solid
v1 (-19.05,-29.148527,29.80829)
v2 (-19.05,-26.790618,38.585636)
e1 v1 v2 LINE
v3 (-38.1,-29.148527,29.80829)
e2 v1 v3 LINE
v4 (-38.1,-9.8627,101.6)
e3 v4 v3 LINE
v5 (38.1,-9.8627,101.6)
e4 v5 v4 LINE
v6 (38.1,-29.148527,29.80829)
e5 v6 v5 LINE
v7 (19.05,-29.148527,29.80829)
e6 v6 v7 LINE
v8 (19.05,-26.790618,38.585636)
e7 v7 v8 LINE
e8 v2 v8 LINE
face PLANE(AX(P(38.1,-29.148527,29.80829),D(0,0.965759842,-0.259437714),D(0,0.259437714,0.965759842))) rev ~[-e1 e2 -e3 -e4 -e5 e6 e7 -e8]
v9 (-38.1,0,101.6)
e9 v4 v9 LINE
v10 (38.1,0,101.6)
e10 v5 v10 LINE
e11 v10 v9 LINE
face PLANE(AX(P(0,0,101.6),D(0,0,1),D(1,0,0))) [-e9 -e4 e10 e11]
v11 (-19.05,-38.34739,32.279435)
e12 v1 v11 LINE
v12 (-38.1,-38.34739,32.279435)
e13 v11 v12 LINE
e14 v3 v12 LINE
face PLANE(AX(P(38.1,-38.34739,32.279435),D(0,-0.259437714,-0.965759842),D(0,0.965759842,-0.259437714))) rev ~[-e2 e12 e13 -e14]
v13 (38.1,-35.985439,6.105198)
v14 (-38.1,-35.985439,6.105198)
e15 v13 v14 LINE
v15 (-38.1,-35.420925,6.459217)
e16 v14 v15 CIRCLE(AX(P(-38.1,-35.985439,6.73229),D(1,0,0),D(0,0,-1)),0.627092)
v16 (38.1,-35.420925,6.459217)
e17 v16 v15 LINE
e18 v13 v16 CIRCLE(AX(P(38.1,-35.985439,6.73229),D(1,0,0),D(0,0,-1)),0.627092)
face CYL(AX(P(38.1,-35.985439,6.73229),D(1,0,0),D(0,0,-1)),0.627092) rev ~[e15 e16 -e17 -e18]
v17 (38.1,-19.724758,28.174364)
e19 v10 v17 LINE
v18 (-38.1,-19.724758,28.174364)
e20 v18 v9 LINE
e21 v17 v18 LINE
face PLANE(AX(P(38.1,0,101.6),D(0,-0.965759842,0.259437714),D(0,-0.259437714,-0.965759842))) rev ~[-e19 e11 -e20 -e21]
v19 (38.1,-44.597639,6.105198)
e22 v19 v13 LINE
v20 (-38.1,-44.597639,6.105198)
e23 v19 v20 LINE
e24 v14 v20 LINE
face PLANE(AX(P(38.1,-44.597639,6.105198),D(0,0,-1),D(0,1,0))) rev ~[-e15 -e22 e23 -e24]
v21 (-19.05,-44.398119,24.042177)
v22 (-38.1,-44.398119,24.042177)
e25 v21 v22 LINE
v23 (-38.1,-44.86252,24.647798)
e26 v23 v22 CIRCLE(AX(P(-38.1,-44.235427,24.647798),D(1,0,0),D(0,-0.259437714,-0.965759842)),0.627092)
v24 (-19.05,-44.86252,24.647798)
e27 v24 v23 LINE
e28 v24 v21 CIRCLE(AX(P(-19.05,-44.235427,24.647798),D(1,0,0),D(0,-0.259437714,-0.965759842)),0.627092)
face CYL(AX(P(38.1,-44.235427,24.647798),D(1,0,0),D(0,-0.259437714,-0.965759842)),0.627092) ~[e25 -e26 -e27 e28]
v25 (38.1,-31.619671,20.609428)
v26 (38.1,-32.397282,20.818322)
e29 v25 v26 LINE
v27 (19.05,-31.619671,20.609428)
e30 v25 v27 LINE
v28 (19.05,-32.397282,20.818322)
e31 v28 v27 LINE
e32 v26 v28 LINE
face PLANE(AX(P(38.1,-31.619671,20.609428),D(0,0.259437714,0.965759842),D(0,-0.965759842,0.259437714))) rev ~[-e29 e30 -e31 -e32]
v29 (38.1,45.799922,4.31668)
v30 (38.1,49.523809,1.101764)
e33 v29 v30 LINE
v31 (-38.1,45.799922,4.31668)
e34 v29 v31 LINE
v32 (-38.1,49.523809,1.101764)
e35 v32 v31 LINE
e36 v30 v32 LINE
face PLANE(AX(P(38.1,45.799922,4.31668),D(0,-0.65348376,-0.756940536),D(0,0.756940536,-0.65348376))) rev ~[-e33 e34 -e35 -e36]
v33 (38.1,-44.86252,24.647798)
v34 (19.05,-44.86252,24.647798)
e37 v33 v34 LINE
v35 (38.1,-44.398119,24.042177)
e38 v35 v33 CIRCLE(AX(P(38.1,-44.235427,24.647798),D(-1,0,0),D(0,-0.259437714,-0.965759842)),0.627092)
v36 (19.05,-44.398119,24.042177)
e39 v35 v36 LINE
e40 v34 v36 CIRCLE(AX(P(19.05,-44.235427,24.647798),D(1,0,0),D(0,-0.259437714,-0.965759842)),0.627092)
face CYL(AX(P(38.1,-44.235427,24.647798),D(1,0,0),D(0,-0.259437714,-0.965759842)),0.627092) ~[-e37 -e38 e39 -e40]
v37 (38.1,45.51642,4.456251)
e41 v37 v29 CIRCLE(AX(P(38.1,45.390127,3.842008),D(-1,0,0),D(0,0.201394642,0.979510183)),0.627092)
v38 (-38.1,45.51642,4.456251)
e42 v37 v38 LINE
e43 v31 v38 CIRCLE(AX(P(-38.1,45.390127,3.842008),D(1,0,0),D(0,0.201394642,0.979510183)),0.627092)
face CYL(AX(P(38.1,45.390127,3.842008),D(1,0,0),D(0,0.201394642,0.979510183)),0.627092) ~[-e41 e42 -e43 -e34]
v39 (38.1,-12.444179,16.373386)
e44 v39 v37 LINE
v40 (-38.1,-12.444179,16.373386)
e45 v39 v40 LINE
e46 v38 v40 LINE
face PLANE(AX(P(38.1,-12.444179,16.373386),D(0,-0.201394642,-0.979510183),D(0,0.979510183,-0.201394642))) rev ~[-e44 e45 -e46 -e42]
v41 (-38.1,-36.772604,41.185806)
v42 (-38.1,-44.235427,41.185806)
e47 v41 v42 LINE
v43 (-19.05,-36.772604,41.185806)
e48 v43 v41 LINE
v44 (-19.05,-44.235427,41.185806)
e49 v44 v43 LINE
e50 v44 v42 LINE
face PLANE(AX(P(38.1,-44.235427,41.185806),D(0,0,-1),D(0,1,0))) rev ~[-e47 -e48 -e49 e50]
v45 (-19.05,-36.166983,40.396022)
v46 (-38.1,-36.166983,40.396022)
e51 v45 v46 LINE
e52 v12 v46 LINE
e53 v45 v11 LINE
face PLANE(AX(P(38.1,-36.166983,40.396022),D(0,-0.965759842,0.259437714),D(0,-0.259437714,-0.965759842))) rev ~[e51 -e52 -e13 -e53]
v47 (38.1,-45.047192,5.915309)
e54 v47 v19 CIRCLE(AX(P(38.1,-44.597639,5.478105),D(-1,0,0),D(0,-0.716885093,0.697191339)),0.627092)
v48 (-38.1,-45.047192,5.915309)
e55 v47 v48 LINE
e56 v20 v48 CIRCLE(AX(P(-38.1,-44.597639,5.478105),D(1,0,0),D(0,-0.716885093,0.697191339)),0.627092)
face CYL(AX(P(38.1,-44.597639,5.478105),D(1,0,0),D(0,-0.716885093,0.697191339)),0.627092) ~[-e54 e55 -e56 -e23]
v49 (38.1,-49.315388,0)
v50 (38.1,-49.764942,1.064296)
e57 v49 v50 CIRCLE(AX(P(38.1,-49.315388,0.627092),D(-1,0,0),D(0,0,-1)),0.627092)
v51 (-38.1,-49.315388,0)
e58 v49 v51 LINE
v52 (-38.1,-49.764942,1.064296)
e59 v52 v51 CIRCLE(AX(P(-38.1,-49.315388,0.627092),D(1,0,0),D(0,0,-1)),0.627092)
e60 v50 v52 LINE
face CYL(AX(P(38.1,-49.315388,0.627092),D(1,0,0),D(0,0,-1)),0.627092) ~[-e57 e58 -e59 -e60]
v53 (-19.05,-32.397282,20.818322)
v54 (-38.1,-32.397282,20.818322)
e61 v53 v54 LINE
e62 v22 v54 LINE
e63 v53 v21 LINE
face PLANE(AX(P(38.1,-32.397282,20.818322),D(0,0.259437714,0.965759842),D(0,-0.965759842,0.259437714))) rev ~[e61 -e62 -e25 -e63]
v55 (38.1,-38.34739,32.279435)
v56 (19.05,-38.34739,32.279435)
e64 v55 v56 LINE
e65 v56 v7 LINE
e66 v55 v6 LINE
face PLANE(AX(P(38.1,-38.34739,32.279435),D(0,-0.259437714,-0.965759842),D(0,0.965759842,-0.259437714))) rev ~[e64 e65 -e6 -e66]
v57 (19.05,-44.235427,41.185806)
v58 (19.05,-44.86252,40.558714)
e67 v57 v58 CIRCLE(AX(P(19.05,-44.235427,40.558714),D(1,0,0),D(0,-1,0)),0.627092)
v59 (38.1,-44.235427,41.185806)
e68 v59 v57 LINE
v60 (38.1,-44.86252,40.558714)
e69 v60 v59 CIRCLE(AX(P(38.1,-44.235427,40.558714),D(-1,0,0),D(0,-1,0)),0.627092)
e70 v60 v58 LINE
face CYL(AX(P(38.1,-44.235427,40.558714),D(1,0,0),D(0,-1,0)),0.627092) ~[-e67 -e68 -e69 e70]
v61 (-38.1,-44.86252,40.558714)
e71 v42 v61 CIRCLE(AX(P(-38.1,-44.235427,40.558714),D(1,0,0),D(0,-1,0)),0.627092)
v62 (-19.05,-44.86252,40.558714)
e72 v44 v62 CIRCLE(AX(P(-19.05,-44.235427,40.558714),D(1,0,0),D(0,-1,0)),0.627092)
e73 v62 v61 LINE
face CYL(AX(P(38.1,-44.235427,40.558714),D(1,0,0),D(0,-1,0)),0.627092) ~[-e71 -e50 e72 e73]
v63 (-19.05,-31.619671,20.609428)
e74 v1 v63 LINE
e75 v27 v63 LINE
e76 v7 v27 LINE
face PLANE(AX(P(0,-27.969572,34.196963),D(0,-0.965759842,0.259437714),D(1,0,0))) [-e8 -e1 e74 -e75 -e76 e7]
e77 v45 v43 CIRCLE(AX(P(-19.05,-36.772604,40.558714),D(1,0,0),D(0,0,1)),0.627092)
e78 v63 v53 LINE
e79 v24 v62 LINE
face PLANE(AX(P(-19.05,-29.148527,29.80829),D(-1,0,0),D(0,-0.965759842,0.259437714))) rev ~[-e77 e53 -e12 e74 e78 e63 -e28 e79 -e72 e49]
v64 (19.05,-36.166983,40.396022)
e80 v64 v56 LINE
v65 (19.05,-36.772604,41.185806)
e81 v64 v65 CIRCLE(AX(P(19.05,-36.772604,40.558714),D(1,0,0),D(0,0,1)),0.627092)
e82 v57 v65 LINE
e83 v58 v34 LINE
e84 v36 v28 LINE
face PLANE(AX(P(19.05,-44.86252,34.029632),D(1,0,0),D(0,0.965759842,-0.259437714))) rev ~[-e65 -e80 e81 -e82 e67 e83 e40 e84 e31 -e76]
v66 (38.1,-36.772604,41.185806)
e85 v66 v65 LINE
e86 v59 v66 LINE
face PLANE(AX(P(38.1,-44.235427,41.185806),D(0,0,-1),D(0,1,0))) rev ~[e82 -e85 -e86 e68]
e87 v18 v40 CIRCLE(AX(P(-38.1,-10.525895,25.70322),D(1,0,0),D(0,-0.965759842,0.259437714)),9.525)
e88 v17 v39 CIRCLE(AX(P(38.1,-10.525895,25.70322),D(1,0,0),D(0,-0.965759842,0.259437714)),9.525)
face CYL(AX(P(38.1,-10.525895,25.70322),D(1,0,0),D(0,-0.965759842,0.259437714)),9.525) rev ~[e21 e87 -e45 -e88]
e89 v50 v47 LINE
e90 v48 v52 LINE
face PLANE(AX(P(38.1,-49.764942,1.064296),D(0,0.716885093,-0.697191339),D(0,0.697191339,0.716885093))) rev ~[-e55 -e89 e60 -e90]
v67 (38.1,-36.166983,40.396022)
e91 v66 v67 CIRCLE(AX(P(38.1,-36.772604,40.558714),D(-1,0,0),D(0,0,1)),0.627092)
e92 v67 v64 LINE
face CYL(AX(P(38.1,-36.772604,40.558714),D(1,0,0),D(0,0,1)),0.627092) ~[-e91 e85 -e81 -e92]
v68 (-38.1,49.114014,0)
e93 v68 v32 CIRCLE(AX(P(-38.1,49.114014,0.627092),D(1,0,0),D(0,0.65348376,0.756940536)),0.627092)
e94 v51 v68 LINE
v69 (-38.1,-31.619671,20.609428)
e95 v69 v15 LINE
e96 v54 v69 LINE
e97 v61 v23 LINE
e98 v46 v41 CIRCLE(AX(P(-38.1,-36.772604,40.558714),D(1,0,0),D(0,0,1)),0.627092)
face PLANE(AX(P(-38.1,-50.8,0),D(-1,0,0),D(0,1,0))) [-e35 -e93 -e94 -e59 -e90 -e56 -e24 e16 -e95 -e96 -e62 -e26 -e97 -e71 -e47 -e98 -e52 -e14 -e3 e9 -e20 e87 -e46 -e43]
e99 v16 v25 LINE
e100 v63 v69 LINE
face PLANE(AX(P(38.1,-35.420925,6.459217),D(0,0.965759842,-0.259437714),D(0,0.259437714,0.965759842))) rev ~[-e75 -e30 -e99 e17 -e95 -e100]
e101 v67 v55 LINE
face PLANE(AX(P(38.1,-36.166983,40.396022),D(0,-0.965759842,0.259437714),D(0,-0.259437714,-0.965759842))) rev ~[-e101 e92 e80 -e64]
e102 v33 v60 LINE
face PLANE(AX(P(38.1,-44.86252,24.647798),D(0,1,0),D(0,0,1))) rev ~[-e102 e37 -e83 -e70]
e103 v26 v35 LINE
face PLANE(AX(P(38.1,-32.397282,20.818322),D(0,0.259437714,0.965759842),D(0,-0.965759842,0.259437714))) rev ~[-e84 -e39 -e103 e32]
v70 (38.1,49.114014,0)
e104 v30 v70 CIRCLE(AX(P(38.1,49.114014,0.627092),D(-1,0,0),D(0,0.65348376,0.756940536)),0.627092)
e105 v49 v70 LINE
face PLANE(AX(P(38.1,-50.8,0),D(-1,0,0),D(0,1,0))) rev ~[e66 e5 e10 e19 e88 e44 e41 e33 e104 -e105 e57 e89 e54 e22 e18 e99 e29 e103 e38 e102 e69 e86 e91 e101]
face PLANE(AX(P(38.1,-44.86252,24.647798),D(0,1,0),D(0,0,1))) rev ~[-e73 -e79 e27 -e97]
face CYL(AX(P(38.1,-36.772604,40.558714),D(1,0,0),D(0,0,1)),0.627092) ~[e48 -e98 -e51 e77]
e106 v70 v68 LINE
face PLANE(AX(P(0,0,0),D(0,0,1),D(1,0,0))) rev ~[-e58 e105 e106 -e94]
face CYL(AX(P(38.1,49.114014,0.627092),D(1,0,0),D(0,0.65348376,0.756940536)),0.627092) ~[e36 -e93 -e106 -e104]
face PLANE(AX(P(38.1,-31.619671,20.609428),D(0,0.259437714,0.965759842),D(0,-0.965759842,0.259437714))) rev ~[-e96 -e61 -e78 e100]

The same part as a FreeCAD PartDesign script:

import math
import FreeCAD as App
import Part
import Sketcher
Q = App.Units.Quantity


def add_polygon(sketch, points):
    """Adds a closed chain of lines whose ends are joined by coincident constraints."""
    first, n = sketch.GeometryCount, len(points)
    for a, b in zip(points, points[1:] + points[:1]):
        sketch.addGeometry(Part.LineSegment(App.Vector(*a, 0), App.Vector(*b, 0)), False)
    for i in range(n):
        sketch.addConstraint(Sketcher.Constraint("Coincident", first + i, 2, first + (i + 1) % n, 1))

doc = App.newDocument("Part")
body = doc.addObject("PartDesign::Body", "Body")

# Sketch on XY plane
sketch1 = body.newObject("Sketcher::SketchObject", "Sketch")
sketch1.AttachmentSupport = (doc.getObject("XY_Plane"), [""])
sketch1.MapMode = "FlatFace"
add_polygon(sketch1, [(-38, 51), (-38, -51), (38, -51), (38, 51)])  # lines 0-3
sketch1.addConstraint([
    Sketcher.Constraint("Vertical", 0),
    Sketcher.Constraint("Horizontal", 1),
    Sketcher.Constraint("Vertical", 2),
    Sketcher.Constraint("Horizontal", 3),
    Sketcher.Constraint("Symmetric", 0, 2, 2, 2, -1, 1),
    Sketcher.Constraint("DistanceX", 1, 1, 1, 2, Q("3 in")),
    Sketcher.Constraint("DistanceY", 0, 2, 0, 1, Q("4 in")),
])
pad1 = body.newObject("PartDesign::Pad", "Pad")
pad1.Profile = sketch1
pad1.Length = Q("4 in")

# Sketch on YZ plane
sketch2 = body.newObject("Sketcher::SketchObject", "Sketch001")
sketch2.AttachmentSupport = (doc.getObject("YZ_Plane"), [""])
sketch2.MapMode = "FlatFace"
sketch2.AttachmentOffset = App.Placement(App.Vector(0, 0, 1.5 * 25.4), App.Rotation())
sketch2.addGeometry([
    Part.LineSegment(App.Vector(50.8, 101.6, 0), App.Vector(0, 101.6, 0)),  # 0
    Part.LineSegment(App.Vector(0, 101.6, 0), App.Vector(-19.72, 28.17, 0)),  # 1
    Part.ArcOfCircle(Part.Circle(App.Vector(-10.53, 25.7, 0), App.Vector(0, 0, 1), 9.53), math.radians(165), math.radians(258)),  # 2
    Part.LineSegment(App.Vector(-12.44, 16.37, 0), App.Vector(45.52, 4.46, 0)),  # 3
    Part.ArcOfCircle(Part.Circle(App.Vector(45.39, 3.84, 0), App.Vector(0, 0, 1), 0.63), math.radians(49), math.radians(78)),  # 4
    Part.LineSegment(App.Vector(45.8, 4.32, 0), App.Vector(49.52, 1.1, 0)),  # 5
    Part.ArcOfCircle(Part.Circle(App.Vector(49.11, 0.63, 0), App.Vector(0, 0, 1), 0.63), math.radians(-90), math.radians(49)),  # 6
    Part.LineSegment(App.Vector(49.11, 0, 0), App.Vector(50.8, 0, 0)),  # 7
    Part.LineSegment(App.Vector(50.8, 0, 0), App.Vector(50.8, 101.6, 0)),  # 8
    Part.LineSegment(App.Vector(-29.15, 29.81, 0), App.Vector(-9.86, 101.6, 0)),  # 9
    Part.LineSegment(App.Vector(-9.86, 101.6, 0), App.Vector(-50.8, 101.6, 0)),  # 10
    Part.LineSegment(App.Vector(-50.8, 101.6, 0), App.Vector(-50.8, 0, 0)),  # 11
    Part.LineSegment(App.Vector(-50.8, 0, 0), App.Vector(-49.32, 0, 0)),  # 12
    Part.ArcOfCircle(Part.Circle(App.Vector(-49.32, 0.63, 0), App.Vector(0, 0, 1), 0.63), math.radians(136), math.radians(270)),  # 13
    Part.LineSegment(App.Vector(-49.76, 1.06, 0), App.Vector(-45.05, 5.92, 0)),  # 14
    Part.ArcOfCircle(Part.Circle(App.Vector(-44.6, 5.48, 0), App.Vector(0, 0, 1), 0.63), math.radians(90), math.radians(136)),  # 15
    Part.LineSegment(App.Vector(-44.6, 6.11, 0), App.Vector(-35.99, 6.11, 0)),  # 16
    Part.ArcOfCircle(Part.Circle(App.Vector(-35.99, 6.73, 0), App.Vector(0, 0, 1), 0.63), math.radians(-90), math.radians(-26)),  # 17
    Part.LineSegment(App.Vector(-35.42, 6.46, 0), App.Vector(-31.62, 20.61, 0)),  # 18
    Part.LineSegment(App.Vector(-31.62, 20.61, 0), App.Vector(-32.4, 20.82, 0)),  # 19
    Part.LineSegment(App.Vector(-32.4, 20.82, 0), App.Vector(-44.4, 24.04, 0)),  # 20
    Part.ArcOfCircle(Part.Circle(App.Vector(-44.24, 24.65, 0), App.Vector(0, 0, 1), 0.63), math.radians(180), math.radians(255)),  # 21
    Part.LineSegment(App.Vector(-44.86, 24.65, 0), App.Vector(-44.86, 40.56, 0)),  # 22
    Part.ArcOfCircle(Part.Circle(App.Vector(-44.24, 40.56, 0), App.Vector(0, 0, 1), 0.63), math.radians(90), math.radians(180)),  # 23
    Part.LineSegment(App.Vector(-44.24, 41.19, 0), App.Vector(-36.77, 41.19, 0)),  # 24
    Part.ArcOfCircle(Part.Circle(App.Vector(-36.77, 40.56, 0), App.Vector(0, 0, 1), 0.63), math.radians(-15), math.radians(90)),  # 25
    Part.LineSegment(App.Vector(-36.17, 40.4, 0), App.Vector(-38.35, 32.28, 0)),  # 26
    Part.LineSegment(App.Vector(-38.35, 32.28, 0), App.Vector(-29.15, 29.81, 0)),  # 27
], False)
sketch2.addConstraint([
    Sketcher.Constraint("Coincident", 0, 2, 1, 1),
    Sketcher.Constraint("Tangent", 1, 2, 2, 1),
    Sketcher.Constraint("Tangent", 2, 2, 3, 1),
    Sketcher.Constraint("Tangent", 3, 2, 4, 2),
    Sketcher.Constraint("Tangent", 4, 1, 5, 1),
    Sketcher.Constraint("Tangent", 5, 2, 6, 2),
    Sketcher.Constraint("Tangent", 6, 1, 7, 1),
    Sketcher.Constraint("Coincident", 7, 2, 8, 1),
    Sketcher.Constraint("Coincident", 8, 2, 0, 1),
    Sketcher.Constraint("Coincident", 9, 2, 10, 1),
    Sketcher.Constraint("Coincident", 10, 2, 11, 1),
    Sketcher.Constraint("Coincident", 11, 2, 12, 1),
    Sketcher.Constraint("Tangent", 12, 2, 13, 2),
    Sketcher.Constraint("Tangent", 13, 1, 14, 1),
    Sketcher.Constraint("Tangent", 14, 2, 15, 2),
    Sketcher.Constraint("Tangent", 15, 1, 16, 1),
    Sketcher.Constraint("Tangent", 16, 2, 17, 1),
    Sketcher.Constraint("Coincident", 17, 2, 18, 1),
    Sketcher.Constraint("Coincident", 18, 2, 19, 1),
    Sketcher.Constraint("Coincident", 19, 2, 20, 1),
    Sketcher.Constraint("Tangent", 20, 2, 21, 2),
    Sketcher.Constraint("Tangent", 21, 1, 22, 1),
    Sketcher.Constraint("Tangent", 22, 2, 23, 2),
    Sketcher.Constraint("Tangent", 23, 1, 24, 1),
    Sketcher.Constraint("Tangent", 24, 2, 25, 2),
    Sketcher.Constraint("Tangent", 25, 1, 26, 1),
    Sketcher.Constraint("Coincident", 26, 2, 27, 1),
    Sketcher.Constraint("Coincident", 27, 2, 9, 1),
    Sketcher.Constraint("Horizontal", 0),
    Sketcher.Constraint("Horizontal", 7),
    Sketcher.Constraint("Vertical", 8),
    Sketcher.Constraint("Horizontal", 10),
    Sketcher.Constraint("Vertical", 11),
    Sketcher.Constraint("Horizontal", 12),
    Sketcher.Constraint("Horizontal", 16),
    Sketcher.Constraint("Vertical", 22),
    Sketcher.Constraint("Horizontal", 24),
    Sketcher.Constraint("Equal", 4, 6),
    Sketcher.Constraint("Equal", 6, 13),
    Sketcher.Constraint("Equal", 13, 15),
    Sketcher.Constraint("Equal", 15, 17),
    Sketcher.Constraint("Equal", 17, 21),
    Sketcher.Constraint("Equal", 21, 23),
    Sketcher.Constraint("Equal", 23, 25),
    Sketcher.Constraint("Symmetric", 7, 2, 11, 2, -1, 1),
    Sketcher.Constraint("PointOnObject", 0, 2, -2),
    Sketcher.Constraint("PointOnObject", 6, 1, -1),
    Sketcher.Constraint("Parallel", 1, 9),
    Sketcher.Constraint("Parallel", 9, 18),
    Sketcher.Constraint("Perpendicular", 18, 19),
    Sketcher.Constraint("Parallel", 19, 20),
    Sketcher.Constraint("Perpendicular", 20, 26),
    Sketcher.Constraint("Perpendicular", 26, 27),
    Sketcher.Constraint("Horizontal", 8, 2, 9, 2),
    Sketcher.Constraint("DistanceX", 0, 2, 0, 1, Q("2 in")),
    Sketcher.Constraint("DistanceY", 8, 1, 8, 2, Q("4 in")),
    Sketcher.Constraint("Radius", 2, Q("0.375 in")),
    Sketcher.Constraint("Distance", 27, Q("0.375 in")),
    Sketcher.Constraint("Distance", 19, Q("0.0317 in")),
    Sketcher.Constraint("DistanceX", 10, 2, 10, 1, Q("40.9373 mm")),
    Sketcher.Constraint("DistanceX", 16, 1, 16, 2, Q("8.6122 mm")),
    Sketcher.Constraint("DistanceY", -1, 1, 17, 2, Q("0.2542999 in")),
    Sketcher.Constraint("Radius", 4, Q("0.627092 mm")),
    Sketcher.Constraint("DistanceX", 13, 1, 17, 3, Q("0.5425001 in")),
    Sketcher.Constraint("DistanceX", 12, 1, 12, 2, Q("1.484612 mm")),
    Sketcher.Constraint("DistanceX", 2, 2, 3, 2, Q("57.9606 mm")),
    Sketcher.Constraint("DistanceX", 3, 2, 4, 1, Q("0.283502 mm")),
    Sketcher.Constraint("DistanceY", 13, 1, 15, 1, Q("5.040902 mm")),
    Sketcher.Constraint("Distance", 9, Q("74.337021 mm")),
    Sketcher.Constraint("DistanceX", 7, 1, 7, 2, Q("1.685986 mm")),
    Sketcher.Constraint("DistanceX", 24, 1, 24, 2, Q("7.462824 mm")),
    Sketcher.Constraint("DistanceY", 22, 1, 22, 2, Q("15.910916 mm")),
    Sketcher.Constraint("DistanceY", -1, 1, 2, 3, Q("25.70322 mm")),
    Sketcher.Constraint("DistanceY", -1, 1, 4, 3, Q("3.842008 mm")),
    Sketcher.Constraint("DistanceX", 18, 2, -1, 1, Q("31.619671 mm")),
])
pocket1 = body.newObject("PartDesign::Pocket", "Pocket")
pocket1.Profile = sketch2
pocket1.Type = "ThroughAll"

# Sketch on an angled plane
sketch3 = body.newObject("Sketcher::SketchObject", "Sketch002")
sketch3.Placement = App.Placement(App.Vector(0, -34.655202, 9.30963), App.Rotation(App.Vector(1, 0, 0), App.Vector(0, 0.259437714, 0.965759842), App.Vector(0, -0.965759842, 0.259437714), "ZXY"))
add_polygon(sketch3, [(-19, 30), (-19, 21), (19, 21), (19, 30)])  # lines 0-3
sketch3.addConstraint([
    Sketcher.Constraint("Vertical", 0),
    Sketcher.Constraint("Horizontal", 1),
    Sketcher.Constraint("Vertical", 2),
    Sketcher.Constraint("Horizontal", 3),
    Sketcher.Constraint("DistanceX", 1, 1, 1, 2, Q("1.5 in")),
    Sketcher.Constraint("DistanceX", 0, 2, -1, 1, Q("0.75 in")),
    Sketcher.Constraint("DistanceY", 0, 2, 0, 1, Q("9.088539 mm")),
    Sketcher.Constraint("DistanceY", -1, 1, 2, 2, Q("30.313961 mm")),
])
pocket2 = body.newObject("PartDesign::Pocket", "Pocket001")
pocket2.Profile = sketch3
pocket2.Length = Q("1 in")
pocket2.Reversed = True

# Sketch on an angled plane
sketch4 = body.newObject("Sketcher::SketchObject", "Sketch003")
sketch4.Placement = App.Placement(App.Vector(0, 5.506675, 20.498661), App.Rotation(App.Vector(1, 0, 0), App.Vector(0, 0.965759842, -0.259437714), App.Vector(0, 0.259437714, 0.965759842), "ZXY"))
add_polygon(sketch4, [(-19, -52), (19, -52), (19, -36), (-19, -36)])  # lines 0-3
sketch4.addConstraint([
    Sketcher.Constraint("Horizontal", 0),
    Sketcher.Constraint("Vertical", 1),
    Sketcher.Constraint("Horizontal", 2),
    Sketcher.Constraint("Vertical", 3),
    Sketcher.Constraint("DistanceX", 0, 1, 0, 2, Q("1.5 in")),
    Sketcher.Constraint("DistanceX", -1, 1, 0, 2, Q("0.75 in")),
    Sketcher.Constraint("DistanceY", 1, 1, 1, 2, Q("16.271118 mm")),
    Sketcher.Constraint("DistanceY", 0, 2, -1, 1, Q("52.15499 mm")),
])
pocket3 = body.newObject("PartDesign::Pocket", "Pocket002")
pocket3.Profile = sketch4
pocket3.Length = Q("0.75 in")

doc.recompute()
